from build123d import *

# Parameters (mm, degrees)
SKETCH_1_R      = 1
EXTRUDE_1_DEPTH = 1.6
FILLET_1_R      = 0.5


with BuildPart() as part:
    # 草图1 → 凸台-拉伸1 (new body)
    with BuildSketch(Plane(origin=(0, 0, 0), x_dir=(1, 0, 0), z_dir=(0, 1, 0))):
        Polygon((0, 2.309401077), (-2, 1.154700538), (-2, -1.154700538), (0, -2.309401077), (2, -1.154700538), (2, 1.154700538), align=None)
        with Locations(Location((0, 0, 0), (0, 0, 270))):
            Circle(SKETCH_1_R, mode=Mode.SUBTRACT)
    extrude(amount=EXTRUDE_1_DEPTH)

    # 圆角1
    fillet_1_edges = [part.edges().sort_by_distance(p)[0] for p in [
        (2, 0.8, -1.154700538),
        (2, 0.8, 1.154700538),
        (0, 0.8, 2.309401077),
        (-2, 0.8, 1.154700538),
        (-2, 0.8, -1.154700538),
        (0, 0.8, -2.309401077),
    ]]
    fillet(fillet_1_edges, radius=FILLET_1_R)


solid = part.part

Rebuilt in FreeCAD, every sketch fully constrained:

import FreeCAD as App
import Part
import Sketcher

V = App.Vector
Q = App.Units.Quantity


def edges_at(feature, points):
    """Names of the edges that pass closest to the given points."""
    edges = feature.Shape.Edges
    near = lambda p: min(range(len(edges)), key=lambda i: edges[i].distToShape(Part.Vertex(*p))[0])
    return sorted({f"Edge{near(p) + 1}" for p in points})

doc = App.newDocument("Part")
body = doc.addObject("PartDesign::Body", "Body")

sketch1 = doc.addObject("Sketcher::SketchObject", "Sketch")
body.addObject(sketch1)
sketch1.AttachmentSupport = (doc.XZ_Plane, [""])
sketch1.MapMode = "FlatFace"
sketch1.addGeometry(Part.LineSegment(V(0, -2.309401, 0), V(-2, -1.154701, 0)), False)
sketch1.addGeometry(Part.LineSegment(V(-2, -1.154701, 0), V(-2, 1.154701, 0)), False)
sketch1.addGeometry(Part.LineSegment(V(-2, 1.154701, 0), V(0, 2.309401, 0)), False)
sketch1.addGeometry(Part.LineSegment(V(0, 2.309401, 0), V(2, 1.154701, 0)), False)
sketch1.addGeometry(Part.LineSegment(V(2, 1.154701, 0), V(2, -1.154701, 0)), False)
sketch1.addGeometry(Part.LineSegment(V(2, -1.154701, 0), V(0, -2.309401, 0)), False)
sketch1.addGeometry(Part.Circle(V(0, 0, 0), V(0, 0, 1), 1), False)
sketch1.addConstraint(Sketcher.Constraint("Coincident", 0, 2, 1, 1))
sketch1.addConstraint(Sketcher.Constraint("Coincident", 1, 2, 2, 1))
sketch1.addConstraint(Sketcher.Constraint("Coincident", 2, 2, 3, 1))
sketch1.addConstraint(Sketcher.Constraint("Coincident", 3, 2, 4, 1))
sketch1.addConstraint(Sketcher.Constraint("Coincident", 4, 2, 5, 1))
sketch1.addConstraint(Sketcher.Constraint("Coincident", 5, 2, 0, 1))
sketch1.addConstraint(Sketcher.Constraint("Vertical", 1))
sketch1.addConstraint(Sketcher.Constraint("Vertical", 4))
sketch1.addConstraint(Sketcher.Constraint("Coincident", 6, 3, -1, 1))
sketch1.addConstraint(Sketcher.Constraint("Symmetric", 0, 2, 3, 2, -1, 1))
sketch1.addConstraint(Sketcher.Constraint("Symmetric", 2, 2, 5, 2, -1, 1))
sketch1.addConstraint(Sketcher.Constraint("PointOnObject", 2, 2, -2))
sketch1.addConstraint(Sketcher.Constraint("Parallel", 2, 5))
sketch1.addConstraint(Sketcher.Constraint("Horizontal", 1, 2, 3, 2))
sketch1.addConstraint(Sketcher.Constraint("Diameter", 6, Q("2 mm")))
sketch1.addConstraint(Sketcher.Constraint("Angle", 0, Q("150 deg")))
sketch1.addConstraint(Sketcher.Constraint("DistanceX", 0, 2, -1, 1, Q("2 mm")))
sketch1.addConstraint(Sketcher.Constraint("DistanceY", 1, 1, 1, 2, Q("2.309401 mm")))
pad1 = doc.addObject("PartDesign::Pad", "Pad")
body.addObject(pad1)
pad1.Profile = sketch1
pad1.Length = 1.6
pad1.Reversed = True
doc.recompute()

fillet = doc.addObject("PartDesign::Fillet", "Fillet")
body.addObject(fillet)
fillet.Base = (pad1, edges_at(pad1, [
    (2, 0.8, -1.155),
    (2, 0.8, 1.155),
    (0, 0.8, 2.309),
    (-2, 0.8, 1.155),
    (-2, 0.8, -1.155),
    (0, 0.8, -2.309),
]))
fillet.Radius = 0.5

doc.recompute()
